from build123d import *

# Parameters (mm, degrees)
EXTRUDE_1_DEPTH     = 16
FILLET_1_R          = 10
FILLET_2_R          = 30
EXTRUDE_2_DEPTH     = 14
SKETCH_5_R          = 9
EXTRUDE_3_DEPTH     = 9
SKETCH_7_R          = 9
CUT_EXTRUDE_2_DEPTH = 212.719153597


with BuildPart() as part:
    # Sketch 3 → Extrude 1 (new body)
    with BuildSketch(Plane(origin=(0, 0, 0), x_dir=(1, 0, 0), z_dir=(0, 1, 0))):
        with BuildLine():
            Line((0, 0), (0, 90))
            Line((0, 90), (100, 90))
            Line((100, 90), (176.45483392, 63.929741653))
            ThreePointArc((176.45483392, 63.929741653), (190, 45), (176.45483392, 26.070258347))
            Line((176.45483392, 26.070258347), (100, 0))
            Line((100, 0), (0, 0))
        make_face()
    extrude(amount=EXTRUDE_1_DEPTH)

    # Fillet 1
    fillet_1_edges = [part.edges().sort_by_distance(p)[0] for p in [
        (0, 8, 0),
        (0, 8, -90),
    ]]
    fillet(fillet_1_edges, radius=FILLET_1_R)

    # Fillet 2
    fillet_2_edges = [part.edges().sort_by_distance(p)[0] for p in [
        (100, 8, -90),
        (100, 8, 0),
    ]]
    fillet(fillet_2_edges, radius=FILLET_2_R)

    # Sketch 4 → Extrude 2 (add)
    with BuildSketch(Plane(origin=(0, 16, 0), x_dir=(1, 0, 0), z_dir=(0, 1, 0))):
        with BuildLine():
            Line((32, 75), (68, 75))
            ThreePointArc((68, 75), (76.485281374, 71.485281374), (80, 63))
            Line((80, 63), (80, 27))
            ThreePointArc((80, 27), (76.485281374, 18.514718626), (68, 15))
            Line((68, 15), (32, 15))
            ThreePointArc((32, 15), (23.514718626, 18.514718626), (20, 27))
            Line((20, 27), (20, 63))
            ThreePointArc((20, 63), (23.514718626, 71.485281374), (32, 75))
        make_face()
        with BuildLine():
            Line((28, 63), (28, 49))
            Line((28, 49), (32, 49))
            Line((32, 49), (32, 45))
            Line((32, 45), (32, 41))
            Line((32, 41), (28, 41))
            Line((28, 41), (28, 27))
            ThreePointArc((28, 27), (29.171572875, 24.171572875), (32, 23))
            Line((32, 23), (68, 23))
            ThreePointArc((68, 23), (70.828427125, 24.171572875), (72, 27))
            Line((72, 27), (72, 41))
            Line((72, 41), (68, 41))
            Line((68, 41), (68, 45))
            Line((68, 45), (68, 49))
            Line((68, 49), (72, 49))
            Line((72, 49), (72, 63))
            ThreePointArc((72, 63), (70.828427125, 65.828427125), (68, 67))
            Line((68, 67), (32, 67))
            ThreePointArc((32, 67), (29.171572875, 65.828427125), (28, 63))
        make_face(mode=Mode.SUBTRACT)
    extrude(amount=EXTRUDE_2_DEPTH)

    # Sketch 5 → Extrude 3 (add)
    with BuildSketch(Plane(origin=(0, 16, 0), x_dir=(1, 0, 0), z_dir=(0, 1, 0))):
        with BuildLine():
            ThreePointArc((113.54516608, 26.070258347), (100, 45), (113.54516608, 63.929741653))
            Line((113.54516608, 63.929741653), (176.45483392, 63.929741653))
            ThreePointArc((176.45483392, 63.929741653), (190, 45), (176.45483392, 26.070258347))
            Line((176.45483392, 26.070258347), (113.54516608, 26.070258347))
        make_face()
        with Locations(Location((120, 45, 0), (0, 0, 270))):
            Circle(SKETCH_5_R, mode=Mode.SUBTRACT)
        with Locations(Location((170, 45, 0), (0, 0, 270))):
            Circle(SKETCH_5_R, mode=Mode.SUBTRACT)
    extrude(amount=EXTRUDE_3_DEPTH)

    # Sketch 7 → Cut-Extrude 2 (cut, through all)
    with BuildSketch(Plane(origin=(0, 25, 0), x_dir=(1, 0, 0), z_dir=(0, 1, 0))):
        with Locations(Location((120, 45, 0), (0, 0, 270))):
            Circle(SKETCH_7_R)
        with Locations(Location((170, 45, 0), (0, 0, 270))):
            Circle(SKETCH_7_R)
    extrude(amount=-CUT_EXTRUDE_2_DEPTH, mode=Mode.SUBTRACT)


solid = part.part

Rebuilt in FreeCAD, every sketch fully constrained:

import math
import FreeCAD as App
import Part
import Sketcher

V = App.Vector


def edges_at(feature, points):
    """Names of the edges that pass closest to the given points."""
    edges = feature.Shape.Edges
    near = lambda p: min(range(len(edges)), key=lambda i: edges[i].distToShape(Part.Vertex(*p))[0])
    return sorted({f"Edge{near(p) + 1}" for p in points})

doc = App.newDocument("Part")
body = doc.addObject("PartDesign::Body", "Body")

sketch1 = doc.addObject("Sketcher::SketchObject", "Sketch")
body.addObject(sketch1)
sketch1.AttachmentSupport = (doc.XZ_Plane, [""])
sketch1.MapMode = "FlatFace"
sketch1.addGeometry([
    Part.LineSegment(V(0, -90, 0), V(0, 0, 0)),
    Part.LineSegment(V(0, 0, 0), V(100, 0, 0)),
    Part.LineSegment(V(100, 0, 0), V(176, -26, 0)),
    Part.ArcOfCircle(Part.Circle(V(170, -45, 0), V(0, 0, 1), 20), math.radians(-71), math.radians(71)),
    Part.LineSegment(V(176, -64, 0), V(100, -90, 0)),
    Part.LineSegment(V(100, -90, 0), V(0, -90, 0)),
], False)
sketch1.addConstraint([
    Sketcher.Constraint("Coincident", 0, 2, 1, 1),
    Sketcher.Constraint("Coincident", 1, 2, 2, 1),
    Sketcher.Constraint("Tangent", 2, 2, 3, 2),
    Sketcher.Constraint("Tangent", 3, 1, 4, 1),
    Sketcher.Constraint("Coincident", 4, 2, 5, 1),
    Sketcher.Constraint("Coincident", 5, 2, 0, 1),
    Sketcher.Constraint("Vertical", 0),
    Sketcher.Constraint("Horizontal", 1),
    Sketcher.Constraint("Horizontal", 5),
    Sketcher.Constraint("Coincident", 0, 2, -1, 1),
    Sketcher.Constraint("Vertical", 2, 2, 3, 1),
    Sketcher.Constraint("Vertical", 1, 2, 4, 2),
    Sketcher.Constraint("Radius", 3, 20.0),
    Sketcher.Constraint("DistanceX", 1, 1, 1, 2, 100.0),
    Sketcher.Constraint("DistanceY", 0, 1, 0, 2, 90.0),
    Sketcher.Constraint("DistanceX", -1, 1, 3, 3, 170.0),
])
pad1 = doc.addObject("PartDesign::Pad", "Pad")
body.addObject(pad1)
pad1.Profile = sketch1
pad1.Length = 16
pad1.Reversed = True
doc.recompute()

fillet = doc.addObject("PartDesign::Fillet", "Fillet")
body.addObject(fillet)
fillet.Base = (pad1, edges_at(pad1, [(0, 8, 0), (0, 8, -90)]))
fillet.Radius = 10
doc.recompute()

fillet2 = doc.addObject("PartDesign::Fillet", "Fillet001")
body.addObject(fillet2)
fillet2.Base = (fillet, edges_at(fillet, [(100, 8, -90), (100, 8, 0)]))
fillet2.Radius = 30

sketch2 = doc.addObject("Sketcher::SketchObject", "Sketch001")
body.addObject(sketch2)
sketch2.AttachmentSupport = (doc.XZ_Plane, [""])
sketch2.MapMode = "FlatFace"
sketch2.AttachmentOffset = App.Placement(V(0, 0, -16), App.Rotation())
sketch2.addGeometry([
    Part.LineSegment(V(68, -75, 0), V(32, -75, 0)),
    Part.ArcOfCircle(Part.Circle(V(32, -63, 0), V(0, 0, 1), 12), math.radians(-180), math.radians(-90)),
    Part.LineSegment(V(20, -63, 0), V(20, -27, 0)),
    Part.ArcOfCircle(Part.Circle(V(32, -27, 0), V(0, 0, 1), 12), math.radians(90), math.radians(180)),
    Part.LineSegment(V(32, -15, 0), V(68, -15, 0)),
    Part.ArcOfCircle(Part.Circle(V(68, -27, 0), V(0, 0, 1), 12), math.radians(0), math.radians(90)),
    Part.LineSegment(V(80, -27, 0), V(80, -63, 0)),
    Part.ArcOfCircle(Part.Circle(V(68, -63, 0), V(0, 0, 1), 12), math.radians(-90), math.radians(0)),
    Part.ArcOfCircle(Part.Circle(V(32, -63, 0), V(0, 0, 1), 4), math.radians(180), math.radians(270)),
    Part.LineSegment(V(32, -67, 0), V(68, -67, 0)),
    Part.ArcOfCircle(Part.Circle(V(68, -63, 0), V(0, 0, 1), 4), math.radians(-90), math.radians(0)),
    Part.LineSegment(V(72, -63, 0), V(72, -49, 0)),
    Part.LineSegment(V(72, -49, 0), V(68, -49, 0)),
    Part.LineSegment(V(68, -49, 0), V(68, -41, 0)),
    Part.LineSegment(V(68, -41, 0), V(72, -41, 0)),
    Part.LineSegment(V(72, -41, 0), V(72, -27, 0)),
    Part.ArcOfCircle(Part.Circle(V(68, -27, 0), V(0, 0, 1), 4), math.radians(0), math.radians(90)),
    Part.LineSegment(V(68, -23, 0), V(32, -23, 0)),
    Part.ArcOfCircle(Part.Circle(V(32, -27, 0), V(0, 0, 1), 4), math.radians(90), math.radians(180)),
    Part.LineSegment(V(28, -27, 0), V(28, -41, 0)),
    Part.LineSegment(V(28, -41, 0), V(32, -41, 0)),
    Part.LineSegment(V(32, -41, 0), V(32, -49, 0)),
    Part.LineSegment(V(32, -49, 0), V(28, -49, 0)),
    Part.LineSegment(V(28, -49, 0), V(28, -63, 0)),
], False)
sketch2.addConstraint([
    Sketcher.Constraint("Tangent", 0, 2, 1, 2),
    Sketcher.Constraint("Tangent", 1, 1, 2, 1),
    Sketcher.Constraint("Tangent", 2, 2, 3, 2),
    Sketcher.Constraint("Tangent", 3, 1, 4, 1),
    Sketcher.Constraint("Tangent", 4, 2, 5, 2),
    Sketcher.Constraint("Tangent", 5, 1, 6, 1),
    Sketcher.Constraint("Tangent", 6, 2, 7, 2),
    Sketcher.Constraint("Tangent", 7, 1, 0, 1),
    Sketcher.Constraint("Tangent", 8, 2, 9, 1),
    Sketcher.Constraint("Tangent", 9, 2, 10, 1),
    Sketcher.Constraint("Tangent", 10, 2, 11, 1),
    Sketcher.Constraint("Coincident", 11, 2, 12, 1),
    Sketcher.Constraint("Coincident", 12, 2, 13, 1),
    Sketcher.Constraint("Coincident", 13, 2, 14, 1),
    Sketcher.Constraint("Coincident", 14, 2, 15, 1),
    Sketcher.Constraint("Tangent", 15, 2, 16, 1),
    Sketcher.Constraint("Tangent", 16, 2, 17, 1),
    Sketcher.Constraint("Tangent", 17, 2, 18, 1),
    Sketcher.Constraint("Tangent", 18, 2, 19, 1),
    Sketcher.Constraint("Coincident", 19, 2, 20, 1),
    Sketcher.Constraint("Coincident", 20, 2, 21, 1),
    Sketcher.Constraint("Coincident", 21, 2, 22, 1),
    Sketcher.Constraint("Coincident", 22, 2, 23, 1),
    Sketcher.Constraint("Tangent", 23, 2, 8, 1),
    Sketcher.Constraint("Horizontal", 0),
    Sketcher.Constraint("Vertical", 2),
    Sketcher.Constraint("Horizontal", 4),
    Sketcher.Constraint("Vertical", 6),
    Sketcher.Constraint("Horizontal", 9),
    Sketcher.Constraint("Vertical", 11),
    Sketcher.Constraint("Horizontal", 12),
    Sketcher.Constraint("Vertical", 13),
    Sketcher.Constraint("Horizontal", 14),
    Sketcher.Constraint("Vertical", 15),
    Sketcher.Constraint("Horizontal", 17),
    Sketcher.Constraint("Vertical", 19),
    Sketcher.Constraint("Horizontal", 20),
    Sketcher.Constraint("Vertical", 21),
    Sketcher.Constraint("Horizontal", 22),
    Sketcher.Constraint("Vertical", 23),
    Sketcher.Constraint("Coincident", 8, 3, 1, 3),
    Sketcher.Constraint("Coincident", 10, 3, 7, 3),
    Sketcher.Constraint("Coincident", 16, 3, 5, 3),
    Sketcher.Constraint("Coincident", 18, 3, 3, 3),
    Sketcher.Constraint("Equal", 1, 3),
    Sketcher.Constraint("Equal", 3, 5),
    Sketcher.Constraint("Equal", 5, 7),
    Sketcher.Constraint("Equal", 10, 16),
    Sketcher.Constraint("Horizontal", 14, 2, 19, 2),
    Sketcher.Constraint("Horizontal", 12, 2, 21, 2),
    Sketcher.Constraint("Vertical", 9, 2, 12, 2),
    Sketcher.Constraint("Vertical", 17, 2, 20, 2),
    Sketcher.Constraint("Equal", 17, 2),
    Sketcher.Constraint("Equal", 11, 15),
    Sketcher.Constraint("Radius", 1, 12.0),
    Sketcher.Constraint("Radius", 8, 4.0),
    Sketcher.Constraint("DistanceX", 0, 2, 0, 1, 36.0),
    Sketcher.Constraint("DistanceY", 11, 1, 11, 2, 14.0),
    Sketcher.Constraint("DistanceX", -1, 1, 1, 3, 32.0),
    Sketcher.Constraint("DistanceY", 1, 3, -1, 1, 63.0),
])
pad2 = doc.addObject("PartDesign::Pad", "Pad001")
body.addObject(pad2)
pad2.Profile = sketch2
pad2.Length = 14
pad2.Reversed = True

sketch3 = doc.addObject("Sketcher::SketchObject", "Sketch002")
body.addObject(sketch3)
sketch3.AttachmentSupport = (doc.XZ_Plane, [""])
sketch3.MapMode = "FlatFace"
sketch3.AttachmentOffset = App.Placement(V(0, 0, -16), App.Rotation())
sketch3.addGeometry([
    Part.ArcOfCircle(Part.Circle(V(120, -45, 0), V(0, 0, 1), 20), math.radians(109), math.radians(251)),
    Part.LineSegment(V(114, -26, 0), V(176, -26, 0)),
    Part.ArcOfCircle(Part.Circle(V(170, -45, 0), V(0, 0, 1), 20), math.radians(-71), math.radians(71)),
    Part.LineSegment(V(176, -64, 0), V(114, -64, 0)),
    Part.Circle(V(170, -45, 0), V(0, 0, 1), 9),
    Part.Circle(V(120, -45, 0), V(0, 0, 1), 9),
], False)
sketch3.addConstraint([
    Sketcher.Constraint("Coincident", 0, 1, 1, 1),
    Sketcher.Constraint("Coincident", 1, 2, 2, 2),
    Sketcher.Constraint("Coincident", 2, 1, 3, 1),
    Sketcher.Constraint("Coincident", 3, 2, 0, 2),
    Sketcher.Constraint("Horizontal", 1),
    Sketcher.Constraint("Horizontal", 3),
    Sketcher.Constraint("Coincident", 4, 3, 2, 3),
    Sketcher.Constraint("Coincident", 5, 3, 0, 3),
    Sketcher.Constraint("Equal", 0, 2),
    Sketcher.Constraint("Equal", 4, 5),
    Sketcher.Constraint("Horizontal", 0, 3, 2, 3),
    Sketcher.Constraint("Vertical", 1, 2, 2, 1),
    Sketcher.Constraint("Diameter", 4, 18.0),
    Sketcher.Constraint("Radius", 0, 20.0),
    Sketcher.Constraint("DistanceX", -1, 1, 0, 3, 120.0),
    Sketcher.Constraint("DistanceY", 0, 3, -1, 1, 45.0),
    Sketcher.Constraint("DistanceX", -1, 1, 2, 3, 170.0),
    Sketcher.Constraint("DistanceX", 1, 1, 1, 2, 62.909668),
])
pad3 = doc.addObject("PartDesign::Pad", "Pad002")
body.addObject(pad3)
pad3.Profile = sketch3
pad3.Length = 9
pad3.Reversed = True

sketch4 = doc.addObject("Sketcher::SketchObject", "Sketch003")
body.addObject(sketch4)
sketch4.AttachmentSupport = (doc.XZ_Plane, [""])
sketch4.MapMode = "FlatFace"
sketch4.AttachmentOffset = App.Placement(V(0, 0, -25), App.Rotation())
sketch4.addGeometry([
    Part.Circle(V(120, -45, 0), V(0, 0, 1), 9),
    Part.Circle(V(170, -45, 0), V(0, 0, 1), 9),
], False)
sketch4.addConstraint([
    Sketcher.Constraint("Equal", 0, 1),
    Sketcher.Constraint("Horizontal", 0, 3, 1, 3),
    Sketcher.Constraint("Diameter", 0, 18.0),
    Sketcher.Constraint("DistanceX", -1, 1, 0, 3, 120.0),
    Sketcher.Constraint("DistanceY", 0, 3, -1, 1, 45.0),
    Sketcher.Constraint("DistanceX", -1, 1, 1, 3, 170.0),
])
pocket1 = doc.addObject("PartDesign::Pocket", "Pocket")
body.addObject(pocket1)
pocket1.Profile = sketch4
pocket1.Type = "ThroughAll"
pocket1.Reversed = True

doc.recompute()
